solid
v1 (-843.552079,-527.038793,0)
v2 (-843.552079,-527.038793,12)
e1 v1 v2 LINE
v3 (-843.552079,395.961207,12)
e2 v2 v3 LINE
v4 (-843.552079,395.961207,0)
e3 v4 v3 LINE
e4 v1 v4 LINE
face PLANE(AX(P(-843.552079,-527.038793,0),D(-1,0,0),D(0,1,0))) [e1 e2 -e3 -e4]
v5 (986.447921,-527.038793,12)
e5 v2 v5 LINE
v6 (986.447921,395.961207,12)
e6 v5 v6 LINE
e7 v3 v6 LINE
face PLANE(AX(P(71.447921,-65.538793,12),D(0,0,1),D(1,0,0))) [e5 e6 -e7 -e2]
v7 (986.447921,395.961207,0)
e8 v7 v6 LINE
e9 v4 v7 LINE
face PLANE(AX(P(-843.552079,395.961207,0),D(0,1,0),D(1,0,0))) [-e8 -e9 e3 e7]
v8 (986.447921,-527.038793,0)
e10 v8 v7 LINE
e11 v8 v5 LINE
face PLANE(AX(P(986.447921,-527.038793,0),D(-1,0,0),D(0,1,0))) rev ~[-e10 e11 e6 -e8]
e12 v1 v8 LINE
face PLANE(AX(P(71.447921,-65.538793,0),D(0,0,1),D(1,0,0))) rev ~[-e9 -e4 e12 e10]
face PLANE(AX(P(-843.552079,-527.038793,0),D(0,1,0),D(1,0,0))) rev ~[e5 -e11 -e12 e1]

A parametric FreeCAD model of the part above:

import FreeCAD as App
import Part
import Sketcher
Q = App.Units.Quantity

doc = App.newDocument("Part")
body = doc.addObject("PartDesign::Body", "Body")

sketch1 = doc.addObject("Sketcher::SketchObject", "Sketch")
body.addObject(sketch1)
sketch1.AttachmentSupport = (doc.XY_Plane, [""])
sketch1.MapMode = "FlatFace"
sketch1.addGeometry([
    Part.LineSegment(App.Vector(-843.552079, 395.961207, 0), App.Vector(-843.552079, -527.038793, 0)),
    Part.LineSegment(App.Vector(-843.552079, -527.038793, 0), App.Vector(986.447921, -527.038793, 0)),
    Part.LineSegment(App.Vector(986.447921, -527.038793, 0), App.Vector(986.447921, 395.961207, 0)),
    Part.LineSegment(App.Vector(986.447921, 395.961207, 0), App.Vector(-843.552079, 395.961207, 0)),
], False)
sketch1.addConstraint([
    Sketcher.Constraint("Coincident", 0, 2, 1, 1),
    Sketcher.Constraint("Coincident", 1, 2, 2, 1),
    Sketcher.Constraint("Coincident", 2, 2, 3, 1),
    Sketcher.Constraint("Coincident", 3, 2, 0, 1),
    Sketcher.Constraint("Vertical", 0),
    Sketcher.Constraint("Horizontal", 1),
    Sketcher.Constraint("Vertical", 2),
    Sketcher.Constraint("Horizontal", 3),
    Sketcher.Constraint("DistanceX", 1, 1, 1, 2, Q("1830 mm")),
    Sketcher.Constraint("DistanceY", 0, 2, 0, 1, Q("923 mm")),
    Sketcher.Constraint("DistanceX", 0, 2, -1, 1, Q("843.552079 mm")),
    Sketcher.Constraint("DistanceY", 0, 2, -1, 1, Q("527.038793 mm")),
])
pad1 = doc.addObject("PartDesign::Pad", "Pad")
body.addObject(pad1)
pad1.Profile = sketch1
pad1.Length = 12

doc.recompute()
